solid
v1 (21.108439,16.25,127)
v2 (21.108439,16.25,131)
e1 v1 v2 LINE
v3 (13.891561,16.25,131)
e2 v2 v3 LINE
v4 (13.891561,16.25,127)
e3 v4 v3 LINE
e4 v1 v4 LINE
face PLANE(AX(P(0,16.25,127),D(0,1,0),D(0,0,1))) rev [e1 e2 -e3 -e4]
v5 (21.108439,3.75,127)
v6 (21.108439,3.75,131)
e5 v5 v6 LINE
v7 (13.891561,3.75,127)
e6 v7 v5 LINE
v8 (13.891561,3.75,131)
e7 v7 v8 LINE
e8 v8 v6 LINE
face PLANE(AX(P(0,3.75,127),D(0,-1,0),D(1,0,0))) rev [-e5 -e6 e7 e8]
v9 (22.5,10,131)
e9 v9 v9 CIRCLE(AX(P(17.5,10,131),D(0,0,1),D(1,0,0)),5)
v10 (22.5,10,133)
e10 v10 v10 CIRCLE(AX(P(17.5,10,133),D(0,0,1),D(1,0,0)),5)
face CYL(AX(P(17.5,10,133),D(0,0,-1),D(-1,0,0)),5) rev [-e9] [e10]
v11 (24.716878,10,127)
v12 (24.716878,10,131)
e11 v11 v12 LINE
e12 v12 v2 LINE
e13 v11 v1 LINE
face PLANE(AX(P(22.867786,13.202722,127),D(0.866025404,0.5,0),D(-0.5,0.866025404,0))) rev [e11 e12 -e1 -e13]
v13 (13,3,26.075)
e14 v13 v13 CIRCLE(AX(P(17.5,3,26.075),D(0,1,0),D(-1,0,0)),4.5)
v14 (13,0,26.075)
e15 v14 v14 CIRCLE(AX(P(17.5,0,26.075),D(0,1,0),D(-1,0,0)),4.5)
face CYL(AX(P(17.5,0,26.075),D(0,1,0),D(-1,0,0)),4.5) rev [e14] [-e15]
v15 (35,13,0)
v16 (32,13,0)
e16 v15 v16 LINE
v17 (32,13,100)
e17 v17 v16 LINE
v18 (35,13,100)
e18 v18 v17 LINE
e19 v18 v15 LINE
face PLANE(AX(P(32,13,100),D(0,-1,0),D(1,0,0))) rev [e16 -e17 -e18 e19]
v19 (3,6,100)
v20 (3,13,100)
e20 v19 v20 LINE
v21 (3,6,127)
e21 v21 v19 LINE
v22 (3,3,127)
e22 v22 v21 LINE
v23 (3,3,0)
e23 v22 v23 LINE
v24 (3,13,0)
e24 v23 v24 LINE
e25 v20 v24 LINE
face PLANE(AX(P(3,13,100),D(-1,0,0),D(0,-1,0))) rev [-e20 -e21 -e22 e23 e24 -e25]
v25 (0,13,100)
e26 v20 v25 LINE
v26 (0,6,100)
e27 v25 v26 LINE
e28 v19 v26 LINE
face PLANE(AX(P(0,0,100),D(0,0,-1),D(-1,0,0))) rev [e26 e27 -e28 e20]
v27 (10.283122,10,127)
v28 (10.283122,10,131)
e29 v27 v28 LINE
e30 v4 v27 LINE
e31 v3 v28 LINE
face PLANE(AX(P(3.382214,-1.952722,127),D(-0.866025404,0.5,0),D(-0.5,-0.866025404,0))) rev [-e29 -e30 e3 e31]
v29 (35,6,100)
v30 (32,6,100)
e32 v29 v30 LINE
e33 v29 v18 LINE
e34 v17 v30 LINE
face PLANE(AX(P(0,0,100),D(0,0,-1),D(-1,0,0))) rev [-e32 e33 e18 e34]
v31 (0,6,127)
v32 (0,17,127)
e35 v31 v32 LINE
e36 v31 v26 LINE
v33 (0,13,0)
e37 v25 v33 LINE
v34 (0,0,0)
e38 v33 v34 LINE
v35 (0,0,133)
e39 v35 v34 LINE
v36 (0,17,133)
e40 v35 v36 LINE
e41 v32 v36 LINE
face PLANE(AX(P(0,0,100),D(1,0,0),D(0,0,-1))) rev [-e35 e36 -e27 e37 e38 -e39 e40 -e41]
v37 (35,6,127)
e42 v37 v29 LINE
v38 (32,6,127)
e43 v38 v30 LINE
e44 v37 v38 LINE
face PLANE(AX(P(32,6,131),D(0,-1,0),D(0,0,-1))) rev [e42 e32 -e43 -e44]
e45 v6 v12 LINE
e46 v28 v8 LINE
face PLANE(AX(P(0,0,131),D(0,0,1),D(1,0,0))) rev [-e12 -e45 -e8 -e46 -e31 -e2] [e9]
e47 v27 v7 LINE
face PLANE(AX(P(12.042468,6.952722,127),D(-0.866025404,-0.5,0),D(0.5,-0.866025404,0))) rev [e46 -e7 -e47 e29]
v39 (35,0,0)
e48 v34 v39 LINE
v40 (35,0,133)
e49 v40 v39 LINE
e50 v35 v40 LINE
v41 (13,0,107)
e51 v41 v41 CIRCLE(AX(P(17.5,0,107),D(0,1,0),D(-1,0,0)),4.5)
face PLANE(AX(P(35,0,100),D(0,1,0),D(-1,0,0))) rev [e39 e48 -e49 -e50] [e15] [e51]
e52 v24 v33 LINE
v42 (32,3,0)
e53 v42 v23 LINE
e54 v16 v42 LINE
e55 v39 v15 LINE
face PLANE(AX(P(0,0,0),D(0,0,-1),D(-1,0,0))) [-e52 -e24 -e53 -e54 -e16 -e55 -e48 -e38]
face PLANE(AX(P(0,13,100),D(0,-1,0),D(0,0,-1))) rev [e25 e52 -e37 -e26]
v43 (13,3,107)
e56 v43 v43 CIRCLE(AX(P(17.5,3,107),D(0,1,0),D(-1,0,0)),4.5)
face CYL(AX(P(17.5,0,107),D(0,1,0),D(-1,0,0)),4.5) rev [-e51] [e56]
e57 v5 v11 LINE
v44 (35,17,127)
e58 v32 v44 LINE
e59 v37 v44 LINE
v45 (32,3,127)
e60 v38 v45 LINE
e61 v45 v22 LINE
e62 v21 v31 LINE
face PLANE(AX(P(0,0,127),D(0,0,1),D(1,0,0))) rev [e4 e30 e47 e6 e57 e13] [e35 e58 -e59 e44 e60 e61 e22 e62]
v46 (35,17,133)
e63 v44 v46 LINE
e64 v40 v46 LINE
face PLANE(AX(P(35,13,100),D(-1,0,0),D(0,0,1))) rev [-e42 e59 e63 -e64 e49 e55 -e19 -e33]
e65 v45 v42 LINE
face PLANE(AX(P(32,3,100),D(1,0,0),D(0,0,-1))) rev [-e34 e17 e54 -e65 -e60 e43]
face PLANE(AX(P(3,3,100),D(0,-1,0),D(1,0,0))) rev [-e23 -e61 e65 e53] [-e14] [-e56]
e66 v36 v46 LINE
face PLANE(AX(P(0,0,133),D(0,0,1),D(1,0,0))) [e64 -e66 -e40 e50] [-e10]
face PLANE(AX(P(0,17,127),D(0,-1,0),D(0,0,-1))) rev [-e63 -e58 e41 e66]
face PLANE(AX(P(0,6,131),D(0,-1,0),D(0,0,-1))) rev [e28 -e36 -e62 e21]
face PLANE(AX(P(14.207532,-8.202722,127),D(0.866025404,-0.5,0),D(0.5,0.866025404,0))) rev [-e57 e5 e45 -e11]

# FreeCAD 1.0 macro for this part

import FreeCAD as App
import Part
import Sketcher

V = App.Vector
Q = App.Units.Quantity


def add_polygon(sketch, points):
    """Adds a closed chain of lines whose ends are joined by coincident constraints."""
    first, n = sketch.GeometryCount, len(points)
    for a, b in zip(points, points[1:] + points[:1]):
        sketch.addGeometry(Part.LineSegment(App.Vector(*a, 0), App.Vector(*b, 0)), False)
    for i in range(n):
        sketch.addConstraint(Sketcher.Constraint("Coincident", first + i, 2, first + (i + 1) % n, 1))

doc = App.newDocument("Part")
body = doc.addObject("PartDesign::Body", "Body")

sketch1 = body.newObject("Sketcher::SketchObject", "Sketch")
sketch1.AttachmentSupport = (doc.getObject("XY_Plane"), [""])
sketch1.MapMode = "FlatFace"
add_polygon(sketch1, [(0, 13), (0, 0), (35, 0), (35, 13), (32, 13), (32, 3), (3, 3), (3, 13)])
sketch1.addConstraint([
    Sketcher.Constraint("Vertical", 0),
    Sketcher.Constraint("Horizontal", 1),
    Sketcher.Constraint("Vertical", 2),
    Sketcher.Constraint("Horizontal", 3),
    Sketcher.Constraint("Vertical", 4),
    Sketcher.Constraint("Horizontal", 5),
    Sketcher.Constraint("Vertical", 6),
    Sketcher.Constraint("Horizontal", 7),
    Sketcher.Constraint("Coincident", 0, 2, -1, 1),
    Sketcher.Constraint("Horizontal", 3, 2, 6, 2),
    Sketcher.Constraint("Equal", 3, 7),
    Sketcher.Constraint("DistanceX", 1, 1, 1, 2, Q("35 mm")),
    Sketcher.Constraint("DistanceX", 3, 2, 3, 1, Q("3 mm")),
    Sketcher.Constraint("DistanceY", 0, 2, 0, 1, Q("13 mm")),
    Sketcher.Constraint("DistanceY", 4, 2, 4, 1, Q("10 mm")),
])
pad1 = body.newObject("PartDesign::Pad", "Pad")
pad1.Profile = sketch1
pad1.Length = 100

sketch2 = body.newObject("Sketcher::SketchObject", "Sketch001")
sketch2.AttachmentSupport = (doc.getObject("XY_Plane"), [""])
sketch2.MapMode = "FlatFace"
sketch2.AttachmentOffset = App.Placement(V(0, 0, 100), App.Rotation())
add_polygon(sketch2, [(3, 3), (3, 6), (0, 6), (0, 0), (35, 0), (35, 6), (32, 6), (32, 3)])
sketch2.addConstraint([
    Sketcher.Constraint("Vertical", 0),
    Sketcher.Constraint("Horizontal", 1),
    Sketcher.Constraint("Vertical", 2),
    Sketcher.Constraint("Horizontal", 3),
    Sketcher.Constraint("Vertical", 4),
    Sketcher.Constraint("Horizontal", 5),
    Sketcher.Constraint("Vertical", 6),
    Sketcher.Constraint("Horizontal", 7),
    Sketcher.Constraint("Coincident", 2, 2, -1, 1),
    Sketcher.Constraint("Horizontal", 1, 2, 4, 2),
    Sketcher.Constraint("Equal", 1, 5),
    Sketcher.Constraint("Equal", 5, 0),
    Sketcher.Constraint("DistanceX", 1, 2, 1, 1, Q("3 mm")),
    Sketcher.Constraint("DistanceX", 3, 1, 3, 2, Q("35 mm")),
    Sketcher.Constraint("DistanceY", 2, 2, 2, 1, Q("6 mm")),
])
pad2 = body.newObject("PartDesign::Pad", "Pad001")
pad2.Profile = sketch2
pad2.Length = 31

sketch3 = body.newObject("Sketcher::SketchObject", "Sketch002")
sketch3.AttachmentSupport = (doc.getObject("XY_Plane"), [""])
sketch3.MapMode = "FlatFace"
sketch3.AttachmentOffset = App.Placement(V(0, 0, 131), App.Rotation())
add_polygon(sketch3, [(0, 17), (0, 0), (35, 0), (35, 17)])
add_polygon(sketch3, [(14, 16), (21, 16), (25, 10), (21, 4), (14, 4), (10, 10)])
sketch3.addConstraint([
    Sketcher.Constraint("Vertical", 0),
    Sketcher.Constraint("Horizontal", 1),
    Sketcher.Constraint("Vertical", 2),
    Sketcher.Constraint("Horizontal", 3),
    Sketcher.Constraint("Horizontal", 4),
    Sketcher.Constraint("Horizontal", 7),
    Sketcher.Constraint("Coincident", 0, 2, -1, 1),
    Sketcher.Constraint("Parallel", 5, 8),
    Sketcher.Constraint("Parallel", 6, 9),
    Sketcher.Constraint("Horizontal", 5, 2, 8, 2),
    Sketcher.Constraint("Vertical", 4, 2, 6, 2),
    Sketcher.Constraint("Vertical", 7, 2, 9, 2),
    Sketcher.Constraint("DistanceX", 1, 1, 1, 2, Q("35 mm")),
    Sketcher.Constraint("DistanceY", 0, 2, 0, 1, Q("17 mm")),
    Sketcher.Constraint("Angle", 5, Q("-60 deg")),
    Sketcher.Constraint("DistanceY", -1, 1, 5, 2, Q("10 mm")),
    Sketcher.Constraint("DistanceY", 6, 2, 4, 2, Q("12.5 mm")),
    Sketcher.Constraint("DistanceX", 4, 1, 4, 2, Q("7.216878 mm")),
    Sketcher.Constraint("DistanceX", -1, 1, 4, 2, Q("21.108439 mm")),
])
pad3 = body.newObject("PartDesign::Pad", "Pad002")
pad3.Profile = sketch3
pad3.Length = 4
pad3.Reversed = True

sketch4 = body.newObject("Sketcher::SketchObject", "Sketch003")
sketch4.AttachmentSupport = (doc.getObject("XZ_Plane"), [""])
sketch4.MapMode = "FlatFace"
sketch4.AttachmentOffset = App.Placement(V(0, 0, -3), App.Rotation())
sketch4.addGeometry([
    Part.Circle(V(17.5, 107, 0), V(0, 0, 1), 4.5),
    Part.Circle(V(17.5, 26.1, 0), V(0, 0, 1), 4.5),
], False)
sketch4.addConstraint([
    Sketcher.Constraint("Equal", 0, 1),
    Sketcher.Constraint("Vertical", 0, 3, 1, 3),
    Sketcher.Constraint("Diameter", 0, Q("9 mm")),
    Sketcher.Constraint("DistanceY", -1, 1, 0, 3, Q("107 mm")),
    Sketcher.Constraint("DistanceX", -1, 1, 0, 3, Q("17.5 mm")),
    Sketcher.Constraint("DistanceY", -1, 1, 1, 3, Q("26.075 mm")),
])
pocket1 = body.newObject("PartDesign::Pocket", "Pocket")
pocket1.Profile = sketch4
pocket1.Type = "ThroughAll"
pocket1.Reversed = True

sketch5 = body.newObject("Sketcher::SketchObject", "Sketch004")
sketch5.AttachmentSupport = (doc.getObject("XY_Plane"), [""])
sketch5.MapMode = "FlatFace"
sketch5.AttachmentOffset = App.Placement(V(0, 0, 131), App.Rotation())
add_polygon(sketch5, [(0, 17), (0, 0), (35, 0), (35, 17)])
sketch5.addGeometry(Part.Circle(V(18, 10, 0), V(0, 0, 1), 5), False)
sketch5.addConstraint([
    Sketcher.Constraint("Vertical", 0),
    Sketcher.Constraint("Horizontal", 1),
    Sketcher.Constraint("Vertical", 2),
    Sketcher.Constraint("Horizontal", 3),
    Sketcher.Constraint("Coincident", 0, 2, -1, 1),
    Sketcher.Constraint("Diameter", 4, Q("10 mm")),
    Sketcher.Constraint("DistanceX", 1, 1, 1, 2, Q("35 mm")),
    Sketcher.Constraint("DistanceY", 0, 2, 0, 1, Q("17 mm")),
    Sketcher.Constraint("DistanceY", -1, 1, 4, 3, Q("10 mm")),
    Sketcher.Constraint("DistanceX", -1, 1, 4, 3, Q("17.5 mm")),
])
pad4 = body.newObject("PartDesign::Pad", "Pad003")
pad4.Profile = sketch5
pad4.Length = 2

doc.recompute()
